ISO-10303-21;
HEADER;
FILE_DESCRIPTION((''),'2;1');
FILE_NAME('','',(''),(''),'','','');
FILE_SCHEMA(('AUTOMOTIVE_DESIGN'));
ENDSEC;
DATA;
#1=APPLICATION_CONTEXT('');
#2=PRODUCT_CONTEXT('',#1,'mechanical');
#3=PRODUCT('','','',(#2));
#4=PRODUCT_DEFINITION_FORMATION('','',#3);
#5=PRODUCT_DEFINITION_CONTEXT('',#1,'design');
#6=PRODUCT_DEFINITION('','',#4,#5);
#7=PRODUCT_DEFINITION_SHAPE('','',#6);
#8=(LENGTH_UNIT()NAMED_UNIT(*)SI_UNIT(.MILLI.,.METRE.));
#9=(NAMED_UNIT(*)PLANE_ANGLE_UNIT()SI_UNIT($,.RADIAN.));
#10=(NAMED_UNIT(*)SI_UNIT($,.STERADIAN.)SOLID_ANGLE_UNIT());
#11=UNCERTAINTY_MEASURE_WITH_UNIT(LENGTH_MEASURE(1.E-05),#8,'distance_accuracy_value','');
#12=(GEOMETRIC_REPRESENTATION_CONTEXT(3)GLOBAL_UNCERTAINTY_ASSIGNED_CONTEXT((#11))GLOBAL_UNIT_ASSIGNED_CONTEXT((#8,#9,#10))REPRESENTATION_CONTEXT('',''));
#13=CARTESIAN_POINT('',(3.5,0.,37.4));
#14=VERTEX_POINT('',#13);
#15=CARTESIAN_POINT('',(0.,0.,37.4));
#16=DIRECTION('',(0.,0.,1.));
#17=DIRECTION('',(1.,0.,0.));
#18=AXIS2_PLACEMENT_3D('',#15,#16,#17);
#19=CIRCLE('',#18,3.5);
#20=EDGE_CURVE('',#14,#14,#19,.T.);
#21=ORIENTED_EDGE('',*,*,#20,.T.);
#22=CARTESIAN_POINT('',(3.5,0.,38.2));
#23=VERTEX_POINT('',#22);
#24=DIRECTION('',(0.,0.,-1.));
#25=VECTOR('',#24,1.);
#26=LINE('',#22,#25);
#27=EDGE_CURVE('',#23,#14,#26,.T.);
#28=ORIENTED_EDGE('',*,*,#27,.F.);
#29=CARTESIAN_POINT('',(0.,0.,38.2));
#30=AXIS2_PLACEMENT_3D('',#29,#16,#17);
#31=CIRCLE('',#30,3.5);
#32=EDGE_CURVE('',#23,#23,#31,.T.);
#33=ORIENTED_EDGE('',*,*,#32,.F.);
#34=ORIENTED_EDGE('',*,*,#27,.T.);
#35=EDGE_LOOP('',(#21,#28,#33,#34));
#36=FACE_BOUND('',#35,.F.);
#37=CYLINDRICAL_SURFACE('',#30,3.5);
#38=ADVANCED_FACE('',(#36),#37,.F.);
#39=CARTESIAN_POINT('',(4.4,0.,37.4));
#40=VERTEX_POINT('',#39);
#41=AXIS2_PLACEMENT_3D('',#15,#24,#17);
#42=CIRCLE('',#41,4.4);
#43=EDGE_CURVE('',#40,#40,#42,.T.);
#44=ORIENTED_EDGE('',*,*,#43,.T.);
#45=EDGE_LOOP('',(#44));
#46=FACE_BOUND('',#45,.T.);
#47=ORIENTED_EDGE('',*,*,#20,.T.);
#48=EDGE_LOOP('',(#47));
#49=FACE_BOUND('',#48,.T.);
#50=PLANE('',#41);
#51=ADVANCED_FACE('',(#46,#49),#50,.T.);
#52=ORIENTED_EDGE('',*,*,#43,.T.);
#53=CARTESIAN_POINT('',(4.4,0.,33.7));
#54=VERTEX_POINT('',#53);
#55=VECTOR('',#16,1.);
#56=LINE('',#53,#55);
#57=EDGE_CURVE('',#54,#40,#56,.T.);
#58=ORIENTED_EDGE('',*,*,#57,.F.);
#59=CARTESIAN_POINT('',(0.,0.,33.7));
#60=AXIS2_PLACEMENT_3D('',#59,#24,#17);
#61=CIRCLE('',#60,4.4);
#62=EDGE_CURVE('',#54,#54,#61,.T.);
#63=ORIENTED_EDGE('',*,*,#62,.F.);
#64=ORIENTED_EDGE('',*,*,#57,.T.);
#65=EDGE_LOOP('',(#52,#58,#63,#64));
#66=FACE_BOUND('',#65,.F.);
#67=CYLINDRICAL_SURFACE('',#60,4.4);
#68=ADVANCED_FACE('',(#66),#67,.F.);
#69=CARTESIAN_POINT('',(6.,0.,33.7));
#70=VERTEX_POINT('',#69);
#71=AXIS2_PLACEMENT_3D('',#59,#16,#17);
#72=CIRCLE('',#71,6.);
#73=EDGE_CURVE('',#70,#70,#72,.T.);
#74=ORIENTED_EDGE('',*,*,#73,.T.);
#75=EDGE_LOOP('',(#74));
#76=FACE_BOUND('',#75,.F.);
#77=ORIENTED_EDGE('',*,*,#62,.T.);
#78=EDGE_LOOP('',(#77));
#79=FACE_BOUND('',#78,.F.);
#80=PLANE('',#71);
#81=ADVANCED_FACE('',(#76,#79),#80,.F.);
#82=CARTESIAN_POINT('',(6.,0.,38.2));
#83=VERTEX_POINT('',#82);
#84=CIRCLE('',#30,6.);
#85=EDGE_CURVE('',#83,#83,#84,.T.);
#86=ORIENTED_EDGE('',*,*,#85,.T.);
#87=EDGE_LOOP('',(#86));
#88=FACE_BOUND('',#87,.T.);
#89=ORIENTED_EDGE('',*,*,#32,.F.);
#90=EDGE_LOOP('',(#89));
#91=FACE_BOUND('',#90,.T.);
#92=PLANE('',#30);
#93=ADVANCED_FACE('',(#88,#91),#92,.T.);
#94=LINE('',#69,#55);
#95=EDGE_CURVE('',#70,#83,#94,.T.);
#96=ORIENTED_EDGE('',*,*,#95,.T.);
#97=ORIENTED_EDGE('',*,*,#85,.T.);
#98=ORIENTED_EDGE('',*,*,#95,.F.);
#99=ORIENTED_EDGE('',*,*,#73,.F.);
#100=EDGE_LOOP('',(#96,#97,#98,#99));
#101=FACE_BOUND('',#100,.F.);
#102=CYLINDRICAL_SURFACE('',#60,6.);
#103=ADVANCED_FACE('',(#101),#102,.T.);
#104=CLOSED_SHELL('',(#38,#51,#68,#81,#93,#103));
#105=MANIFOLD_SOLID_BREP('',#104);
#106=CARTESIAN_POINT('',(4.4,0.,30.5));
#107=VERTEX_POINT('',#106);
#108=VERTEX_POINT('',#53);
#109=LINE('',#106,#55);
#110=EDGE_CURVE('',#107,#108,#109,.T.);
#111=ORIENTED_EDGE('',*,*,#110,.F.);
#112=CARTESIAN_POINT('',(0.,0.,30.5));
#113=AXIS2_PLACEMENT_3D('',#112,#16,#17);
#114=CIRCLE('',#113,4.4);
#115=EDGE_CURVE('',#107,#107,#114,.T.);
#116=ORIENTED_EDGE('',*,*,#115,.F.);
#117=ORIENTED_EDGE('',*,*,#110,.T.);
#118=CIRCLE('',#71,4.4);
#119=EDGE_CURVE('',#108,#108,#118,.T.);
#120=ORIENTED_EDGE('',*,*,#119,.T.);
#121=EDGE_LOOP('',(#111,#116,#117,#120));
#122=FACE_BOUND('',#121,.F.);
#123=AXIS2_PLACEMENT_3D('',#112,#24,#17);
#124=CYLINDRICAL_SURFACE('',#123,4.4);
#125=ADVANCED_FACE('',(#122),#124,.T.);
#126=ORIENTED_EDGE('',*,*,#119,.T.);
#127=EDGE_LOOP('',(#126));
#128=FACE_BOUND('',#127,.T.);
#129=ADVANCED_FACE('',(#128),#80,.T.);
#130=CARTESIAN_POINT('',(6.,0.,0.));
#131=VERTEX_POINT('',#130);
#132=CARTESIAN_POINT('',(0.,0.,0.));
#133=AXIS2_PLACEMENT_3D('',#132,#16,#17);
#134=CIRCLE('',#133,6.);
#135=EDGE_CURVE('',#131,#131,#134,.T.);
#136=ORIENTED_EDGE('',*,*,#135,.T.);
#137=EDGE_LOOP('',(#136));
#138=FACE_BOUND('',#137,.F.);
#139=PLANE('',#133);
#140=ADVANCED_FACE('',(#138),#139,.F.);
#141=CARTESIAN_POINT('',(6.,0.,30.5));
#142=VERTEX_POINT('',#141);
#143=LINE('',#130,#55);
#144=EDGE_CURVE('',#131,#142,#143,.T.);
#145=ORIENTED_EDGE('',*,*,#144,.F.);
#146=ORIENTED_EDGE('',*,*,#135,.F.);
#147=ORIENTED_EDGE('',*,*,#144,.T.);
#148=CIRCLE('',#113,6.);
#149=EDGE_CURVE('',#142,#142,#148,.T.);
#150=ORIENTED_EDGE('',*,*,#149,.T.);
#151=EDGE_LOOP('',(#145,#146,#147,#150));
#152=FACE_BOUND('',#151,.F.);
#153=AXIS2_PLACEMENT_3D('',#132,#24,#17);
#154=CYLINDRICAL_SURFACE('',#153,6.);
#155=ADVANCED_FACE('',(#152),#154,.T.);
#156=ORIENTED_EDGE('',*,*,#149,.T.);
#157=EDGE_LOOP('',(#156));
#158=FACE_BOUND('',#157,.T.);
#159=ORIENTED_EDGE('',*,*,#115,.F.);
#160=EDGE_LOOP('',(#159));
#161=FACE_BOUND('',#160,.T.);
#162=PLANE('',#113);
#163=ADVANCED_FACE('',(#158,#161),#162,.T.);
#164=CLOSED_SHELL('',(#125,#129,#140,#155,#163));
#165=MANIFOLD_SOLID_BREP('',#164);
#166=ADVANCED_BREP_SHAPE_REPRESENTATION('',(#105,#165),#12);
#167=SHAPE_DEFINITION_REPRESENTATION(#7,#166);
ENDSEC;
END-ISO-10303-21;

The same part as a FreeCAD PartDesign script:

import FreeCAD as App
import Part
import Sketcher
from FreeCAD import Vector
Q = App.Units.Quantity

doc = App.newDocument("Part")
body = doc.addObject("PartDesign::Body", "Body")

# Sketch on XY plane
sketch1 = body.newObject("Sketcher::SketchObject", "Sketch")
sketch1.AttachmentSupport = (doc.getObject("XY_Plane"), [""])
sketch1.MapMode = "FlatFace"
sketch1.addGeometry(Part.Circle(Vector(0, 0, 0), Vector(0, 0, 1), 6), False)
sketch1.addConstraint(Sketcher.Constraint("Coincident", 0, 3, -1, 1))
sketch1.addConstraint(Sketcher.Constraint("Diameter", 0, Q("12 mm")))
pad1 = body.newObject("PartDesign::Pad", "Pad")
pad1.Profile = sketch1
pad1.Length = 30.5

# Sketch on XY plane
sketch2 = body.newObject("Sketcher::SketchObject", "Sketch001")
sketch2.AttachmentSupport = (doc.getObject("XY_Plane"), [""])
sketch2.MapMode = "FlatFace"
sketch2.AttachmentOffset = App.Placement(Vector(0, 0, 30.5), App.Rotation())
sketch2.addGeometry(Part.Circle(Vector(0, 0, 0), Vector(0, 0, 1), 4.4), False)
sketch2.addConstraint(Sketcher.Constraint("Coincident", 0, 3, -1, 1))
sketch2.addConstraint(Sketcher.Constraint("Diameter", 0, Q("8.8 mm")))
pad2 = body.newObject("PartDesign::Pad", "Pad001")
pad2.Profile = sketch2
pad2.Length = 3.2
body2 = doc.addObject("PartDesign::Body", "Body001")

# Sketch on XY plane
sketch3 = body2.newObject("Sketcher::SketchObject", "Sketch002")
sketch3.AttachmentSupport = (doc.getObject("XY_Plane001"), [""])
sketch3.MapMode = "FlatFace"
sketch3.AttachmentOffset = App.Placement(Vector(0, 0, 33.7), App.Rotation())
sketch3.addGeometry(Part.Circle(Vector(0, 0, 0), Vector(0, 0, 1), 6), False)
sketch3.addConstraint(Sketcher.Constraint("Coincident", 0, 3, -1, 1))
sketch3.addConstraint(Sketcher.Constraint("Diameter", 0, Q("12 mm")))
pad3 = body2.newObject("PartDesign::Pad", "Pad002")
pad3.Profile = sketch3
pad3.Length = 4.5

# Sketch on XY plane
sketch4 = body2.newObject("Sketcher::SketchObject", "Sketch003")
sketch4.AttachmentSupport = (doc.getObject("XY_Plane001"), [""])
sketch4.MapMode = "FlatFace"
sketch4.AttachmentOffset = App.Placement(Vector(0, 0, 33.7), App.Rotation())
sketch4.addGeometry(Part.Circle(Vector(0, 0, 0), Vector(0, 0, 1), 4.4), False)
sketch4.addConstraint(Sketcher.Constraint("Coincident", 0, 3, -1, 1))
sketch4.addConstraint(Sketcher.Constraint("Diameter", 0, Q("8.8 mm")))
pocket1 = body2.newObject("PartDesign::Pocket", "Pocket")
pocket1.Profile = sketch4
pocket1.Length = 3.7
pocket1.Reversed = True

# Sketch on XY plane
sketch5 = body2.newObject("Sketcher::SketchObject", "Sketch004")
sketch5.AttachmentSupport = (doc.getObject("XY_Plane001"), [""])
sketch5.MapMode = "FlatFace"
sketch5.AttachmentOffset = App.Placement(Vector(0, 0, 38.2), App.Rotation())
sketch5.addGeometry(Part.Circle(Vector(0, 0, 0), Vector(0, 0, 1), 3.5), False)
sketch5.addConstraint(Sketcher.Constraint("Coincident", 0, 3, -1, 1))
sketch5.addConstraint(Sketcher.Constraint("Diameter", 0, Q("7 mm")))
pocket2 = body2.newObject("PartDesign::Pocket", "Pocket001")
pocket2.Profile = sketch5
pocket2.Length = 1

doc.recompute()
